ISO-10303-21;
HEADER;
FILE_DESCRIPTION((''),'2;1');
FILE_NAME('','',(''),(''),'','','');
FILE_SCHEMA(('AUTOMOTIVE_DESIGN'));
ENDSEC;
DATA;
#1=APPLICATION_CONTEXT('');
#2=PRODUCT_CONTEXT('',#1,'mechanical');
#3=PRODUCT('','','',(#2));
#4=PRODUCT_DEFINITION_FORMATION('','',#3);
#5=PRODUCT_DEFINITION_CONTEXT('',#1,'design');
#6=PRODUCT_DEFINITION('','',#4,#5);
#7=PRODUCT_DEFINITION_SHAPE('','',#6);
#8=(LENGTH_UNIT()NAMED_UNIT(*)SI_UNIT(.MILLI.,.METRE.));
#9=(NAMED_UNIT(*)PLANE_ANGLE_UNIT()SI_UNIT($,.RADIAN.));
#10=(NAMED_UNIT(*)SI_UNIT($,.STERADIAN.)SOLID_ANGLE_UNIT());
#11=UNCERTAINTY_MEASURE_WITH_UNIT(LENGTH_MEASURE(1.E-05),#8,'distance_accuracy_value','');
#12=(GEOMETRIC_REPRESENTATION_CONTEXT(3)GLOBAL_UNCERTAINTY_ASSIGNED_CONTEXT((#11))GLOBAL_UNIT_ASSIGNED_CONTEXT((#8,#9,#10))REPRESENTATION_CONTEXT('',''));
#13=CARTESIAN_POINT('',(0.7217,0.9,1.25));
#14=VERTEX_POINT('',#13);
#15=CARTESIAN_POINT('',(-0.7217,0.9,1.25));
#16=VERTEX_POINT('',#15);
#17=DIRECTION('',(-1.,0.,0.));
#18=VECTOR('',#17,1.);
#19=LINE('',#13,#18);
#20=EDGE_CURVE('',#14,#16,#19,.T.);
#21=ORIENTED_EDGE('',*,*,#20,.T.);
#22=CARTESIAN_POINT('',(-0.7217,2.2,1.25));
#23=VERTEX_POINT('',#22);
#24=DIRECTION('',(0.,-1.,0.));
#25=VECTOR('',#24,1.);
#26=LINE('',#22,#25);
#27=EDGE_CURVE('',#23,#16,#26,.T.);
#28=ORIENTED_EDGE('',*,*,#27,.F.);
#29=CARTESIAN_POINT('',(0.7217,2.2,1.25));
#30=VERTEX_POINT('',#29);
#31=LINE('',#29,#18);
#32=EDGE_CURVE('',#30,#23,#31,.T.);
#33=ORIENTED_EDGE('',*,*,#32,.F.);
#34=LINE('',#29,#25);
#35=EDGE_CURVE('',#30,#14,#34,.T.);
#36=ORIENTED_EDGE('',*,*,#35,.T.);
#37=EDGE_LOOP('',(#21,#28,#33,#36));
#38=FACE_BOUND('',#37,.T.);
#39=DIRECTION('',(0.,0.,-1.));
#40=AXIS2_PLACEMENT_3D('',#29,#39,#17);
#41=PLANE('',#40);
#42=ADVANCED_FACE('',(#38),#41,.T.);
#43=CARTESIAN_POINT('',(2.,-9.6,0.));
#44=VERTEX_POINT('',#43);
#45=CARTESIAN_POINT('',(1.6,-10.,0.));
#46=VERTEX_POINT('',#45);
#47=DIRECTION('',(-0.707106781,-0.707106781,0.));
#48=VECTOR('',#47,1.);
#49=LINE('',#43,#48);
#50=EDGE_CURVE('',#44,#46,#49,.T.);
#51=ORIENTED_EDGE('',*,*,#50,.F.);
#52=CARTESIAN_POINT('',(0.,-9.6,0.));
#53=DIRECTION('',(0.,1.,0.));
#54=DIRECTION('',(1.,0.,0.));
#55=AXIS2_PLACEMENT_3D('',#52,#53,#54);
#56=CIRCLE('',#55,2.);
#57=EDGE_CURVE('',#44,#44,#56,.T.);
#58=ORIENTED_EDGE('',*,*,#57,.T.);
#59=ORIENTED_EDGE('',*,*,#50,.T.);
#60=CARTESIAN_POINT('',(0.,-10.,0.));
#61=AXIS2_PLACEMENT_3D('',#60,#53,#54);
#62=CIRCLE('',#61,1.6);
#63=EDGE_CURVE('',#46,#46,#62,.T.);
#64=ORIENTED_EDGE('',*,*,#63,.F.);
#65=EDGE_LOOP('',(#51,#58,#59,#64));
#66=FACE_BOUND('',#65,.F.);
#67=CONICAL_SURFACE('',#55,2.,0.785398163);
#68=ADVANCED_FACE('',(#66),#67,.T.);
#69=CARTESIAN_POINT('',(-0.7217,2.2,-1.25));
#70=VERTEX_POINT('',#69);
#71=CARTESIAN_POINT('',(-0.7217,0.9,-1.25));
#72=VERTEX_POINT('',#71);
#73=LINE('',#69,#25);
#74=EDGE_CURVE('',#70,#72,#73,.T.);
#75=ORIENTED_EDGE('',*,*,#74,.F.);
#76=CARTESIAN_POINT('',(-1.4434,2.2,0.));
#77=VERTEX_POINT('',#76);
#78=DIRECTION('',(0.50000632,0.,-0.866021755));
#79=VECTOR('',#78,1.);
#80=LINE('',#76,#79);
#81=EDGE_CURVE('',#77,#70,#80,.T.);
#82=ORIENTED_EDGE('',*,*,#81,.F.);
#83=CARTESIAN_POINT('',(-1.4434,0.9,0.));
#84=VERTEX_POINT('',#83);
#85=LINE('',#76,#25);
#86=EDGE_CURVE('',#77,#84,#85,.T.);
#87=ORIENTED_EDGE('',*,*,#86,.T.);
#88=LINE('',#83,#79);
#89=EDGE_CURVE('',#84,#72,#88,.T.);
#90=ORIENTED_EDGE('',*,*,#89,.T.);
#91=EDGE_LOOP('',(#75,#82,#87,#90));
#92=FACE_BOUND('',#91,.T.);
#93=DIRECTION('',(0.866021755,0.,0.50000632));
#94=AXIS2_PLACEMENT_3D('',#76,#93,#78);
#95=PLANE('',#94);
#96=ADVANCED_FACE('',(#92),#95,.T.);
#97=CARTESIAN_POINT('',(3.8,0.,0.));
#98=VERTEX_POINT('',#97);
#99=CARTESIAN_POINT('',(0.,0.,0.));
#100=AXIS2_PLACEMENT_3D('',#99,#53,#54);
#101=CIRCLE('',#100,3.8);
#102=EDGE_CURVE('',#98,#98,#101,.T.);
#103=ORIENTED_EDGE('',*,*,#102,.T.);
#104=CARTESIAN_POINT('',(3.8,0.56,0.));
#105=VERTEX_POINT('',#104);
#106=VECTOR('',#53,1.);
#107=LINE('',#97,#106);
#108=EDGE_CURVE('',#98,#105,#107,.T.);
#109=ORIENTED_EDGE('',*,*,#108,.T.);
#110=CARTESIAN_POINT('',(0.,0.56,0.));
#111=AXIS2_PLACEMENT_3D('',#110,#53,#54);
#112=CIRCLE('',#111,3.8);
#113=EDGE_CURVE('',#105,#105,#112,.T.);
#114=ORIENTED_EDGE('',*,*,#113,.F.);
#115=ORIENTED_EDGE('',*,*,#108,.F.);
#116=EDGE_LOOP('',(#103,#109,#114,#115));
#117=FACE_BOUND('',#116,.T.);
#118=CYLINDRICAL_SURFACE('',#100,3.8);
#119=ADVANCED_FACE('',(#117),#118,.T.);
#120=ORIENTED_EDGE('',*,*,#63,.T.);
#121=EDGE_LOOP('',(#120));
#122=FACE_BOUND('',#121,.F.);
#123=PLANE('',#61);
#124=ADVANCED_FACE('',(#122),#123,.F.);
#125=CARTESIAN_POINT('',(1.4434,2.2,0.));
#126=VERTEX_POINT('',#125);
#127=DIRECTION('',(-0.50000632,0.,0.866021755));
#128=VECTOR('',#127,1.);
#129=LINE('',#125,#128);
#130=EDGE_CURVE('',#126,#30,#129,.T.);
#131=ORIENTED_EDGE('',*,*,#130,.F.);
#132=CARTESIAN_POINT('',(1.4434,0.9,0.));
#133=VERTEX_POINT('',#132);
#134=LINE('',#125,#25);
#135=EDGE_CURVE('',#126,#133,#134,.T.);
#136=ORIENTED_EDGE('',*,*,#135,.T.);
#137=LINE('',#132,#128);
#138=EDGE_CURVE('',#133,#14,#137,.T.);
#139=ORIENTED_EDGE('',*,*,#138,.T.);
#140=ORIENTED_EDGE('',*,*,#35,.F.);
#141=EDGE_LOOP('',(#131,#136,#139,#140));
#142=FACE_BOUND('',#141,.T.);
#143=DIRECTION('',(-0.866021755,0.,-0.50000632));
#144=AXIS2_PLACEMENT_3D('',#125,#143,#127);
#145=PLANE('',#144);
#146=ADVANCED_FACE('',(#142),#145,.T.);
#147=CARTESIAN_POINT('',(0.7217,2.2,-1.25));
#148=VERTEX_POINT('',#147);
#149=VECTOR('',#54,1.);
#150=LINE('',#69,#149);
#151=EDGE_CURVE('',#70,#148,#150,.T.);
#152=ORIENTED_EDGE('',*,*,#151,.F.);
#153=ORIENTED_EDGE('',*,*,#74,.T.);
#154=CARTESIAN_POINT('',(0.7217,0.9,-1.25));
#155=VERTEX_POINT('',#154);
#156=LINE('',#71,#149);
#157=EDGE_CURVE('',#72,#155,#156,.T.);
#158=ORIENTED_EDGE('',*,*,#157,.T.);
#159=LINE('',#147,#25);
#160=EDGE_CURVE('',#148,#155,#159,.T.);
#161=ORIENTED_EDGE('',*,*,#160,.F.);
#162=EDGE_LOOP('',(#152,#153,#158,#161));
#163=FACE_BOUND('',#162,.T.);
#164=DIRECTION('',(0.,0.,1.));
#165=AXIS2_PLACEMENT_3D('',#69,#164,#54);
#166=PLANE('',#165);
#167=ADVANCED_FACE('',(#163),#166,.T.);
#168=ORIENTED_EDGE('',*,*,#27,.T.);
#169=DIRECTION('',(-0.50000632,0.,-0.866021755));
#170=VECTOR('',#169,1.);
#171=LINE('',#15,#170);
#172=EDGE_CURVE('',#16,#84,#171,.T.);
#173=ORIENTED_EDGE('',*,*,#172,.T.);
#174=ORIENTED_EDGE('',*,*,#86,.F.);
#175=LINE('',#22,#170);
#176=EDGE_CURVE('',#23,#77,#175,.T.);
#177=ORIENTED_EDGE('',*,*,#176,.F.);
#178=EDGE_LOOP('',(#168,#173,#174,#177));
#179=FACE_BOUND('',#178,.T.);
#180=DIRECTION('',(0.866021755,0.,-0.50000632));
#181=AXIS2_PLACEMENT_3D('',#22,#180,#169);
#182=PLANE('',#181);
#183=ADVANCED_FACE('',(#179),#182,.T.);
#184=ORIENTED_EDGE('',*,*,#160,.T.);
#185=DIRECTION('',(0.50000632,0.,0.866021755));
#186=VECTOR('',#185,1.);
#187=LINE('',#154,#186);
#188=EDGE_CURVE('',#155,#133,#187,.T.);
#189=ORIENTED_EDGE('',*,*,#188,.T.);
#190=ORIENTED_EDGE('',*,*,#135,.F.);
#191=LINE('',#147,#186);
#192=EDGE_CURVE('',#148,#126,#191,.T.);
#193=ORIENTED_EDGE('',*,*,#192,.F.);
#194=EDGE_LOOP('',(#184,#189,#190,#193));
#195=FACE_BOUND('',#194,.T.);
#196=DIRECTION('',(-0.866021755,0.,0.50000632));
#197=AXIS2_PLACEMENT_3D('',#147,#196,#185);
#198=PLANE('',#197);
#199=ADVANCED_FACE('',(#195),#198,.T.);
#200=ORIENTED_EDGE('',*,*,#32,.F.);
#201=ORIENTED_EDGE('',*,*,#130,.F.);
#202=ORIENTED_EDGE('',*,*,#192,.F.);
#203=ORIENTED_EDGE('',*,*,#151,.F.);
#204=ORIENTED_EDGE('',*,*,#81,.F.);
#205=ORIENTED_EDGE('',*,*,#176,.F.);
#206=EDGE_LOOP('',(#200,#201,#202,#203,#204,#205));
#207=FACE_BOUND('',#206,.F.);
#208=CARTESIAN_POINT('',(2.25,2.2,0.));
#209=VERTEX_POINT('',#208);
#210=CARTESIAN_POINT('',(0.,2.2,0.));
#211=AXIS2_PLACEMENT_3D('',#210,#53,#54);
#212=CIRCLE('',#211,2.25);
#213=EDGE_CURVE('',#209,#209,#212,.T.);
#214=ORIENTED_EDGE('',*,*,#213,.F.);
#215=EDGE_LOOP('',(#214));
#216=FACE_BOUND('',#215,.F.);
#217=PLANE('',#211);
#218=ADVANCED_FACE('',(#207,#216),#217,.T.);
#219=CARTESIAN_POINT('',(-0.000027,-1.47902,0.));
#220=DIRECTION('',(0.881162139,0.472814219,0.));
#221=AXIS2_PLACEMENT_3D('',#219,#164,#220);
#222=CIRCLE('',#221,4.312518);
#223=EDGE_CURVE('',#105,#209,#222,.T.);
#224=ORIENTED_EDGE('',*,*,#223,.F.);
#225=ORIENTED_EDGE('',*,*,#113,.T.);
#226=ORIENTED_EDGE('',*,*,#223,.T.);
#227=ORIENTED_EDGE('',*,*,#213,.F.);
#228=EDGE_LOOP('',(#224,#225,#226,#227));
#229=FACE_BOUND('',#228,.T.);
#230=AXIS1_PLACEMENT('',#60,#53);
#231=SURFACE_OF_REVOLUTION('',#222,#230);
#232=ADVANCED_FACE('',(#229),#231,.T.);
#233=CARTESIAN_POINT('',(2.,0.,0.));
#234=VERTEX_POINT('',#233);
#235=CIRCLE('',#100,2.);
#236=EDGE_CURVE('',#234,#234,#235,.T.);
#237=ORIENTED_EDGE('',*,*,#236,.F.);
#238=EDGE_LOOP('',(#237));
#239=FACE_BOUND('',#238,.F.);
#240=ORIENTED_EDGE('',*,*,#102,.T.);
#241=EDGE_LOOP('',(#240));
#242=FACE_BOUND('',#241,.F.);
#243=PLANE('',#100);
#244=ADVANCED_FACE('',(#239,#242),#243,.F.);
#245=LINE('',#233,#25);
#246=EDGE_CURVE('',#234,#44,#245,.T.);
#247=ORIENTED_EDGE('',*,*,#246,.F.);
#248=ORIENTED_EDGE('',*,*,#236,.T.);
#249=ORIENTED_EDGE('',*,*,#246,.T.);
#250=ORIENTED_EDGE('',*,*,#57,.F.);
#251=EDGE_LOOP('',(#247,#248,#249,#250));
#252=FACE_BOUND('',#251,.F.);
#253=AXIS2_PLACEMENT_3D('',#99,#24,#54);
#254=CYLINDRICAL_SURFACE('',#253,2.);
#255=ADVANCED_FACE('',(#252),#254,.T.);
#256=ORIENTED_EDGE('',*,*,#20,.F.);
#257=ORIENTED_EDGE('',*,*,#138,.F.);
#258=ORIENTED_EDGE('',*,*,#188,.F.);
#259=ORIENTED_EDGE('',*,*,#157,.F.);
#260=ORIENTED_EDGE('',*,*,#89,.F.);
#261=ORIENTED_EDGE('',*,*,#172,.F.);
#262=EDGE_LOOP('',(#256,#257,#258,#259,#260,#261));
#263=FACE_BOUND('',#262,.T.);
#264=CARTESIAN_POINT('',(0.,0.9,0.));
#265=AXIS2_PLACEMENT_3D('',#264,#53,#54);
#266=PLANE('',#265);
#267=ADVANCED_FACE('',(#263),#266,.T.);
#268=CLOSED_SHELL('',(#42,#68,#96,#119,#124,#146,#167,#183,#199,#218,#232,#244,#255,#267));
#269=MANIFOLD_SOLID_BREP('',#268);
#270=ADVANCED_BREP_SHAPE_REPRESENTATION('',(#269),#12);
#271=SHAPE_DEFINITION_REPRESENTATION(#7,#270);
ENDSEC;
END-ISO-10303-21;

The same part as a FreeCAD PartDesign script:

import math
import FreeCAD as App
import Part
import Sketcher
from FreeCAD import Vector
Q = App.Units.Quantity


def edges_at(feature, points):
    """Names of the edges that pass closest to the given points."""
    edges = feature.Shape.Edges
    near = lambda p: min(range(len(edges)), key=lambda i: edges[i].distToShape(Part.Vertex(*p))[0])
    return sorted({f"Edge{near(p) + 1}" for p in points})

doc = App.newDocument("Part")
body = doc.addObject("PartDesign::Body", "Body")

# Sketch on XY plane
sketch1 = body.newObject("Sketcher::SketchObject", "Sketch")
sketch1.AttachmentSupport = (doc.getObject("XY_Plane"), [""])
sketch1.MapMode = "FlatFace"
sketch1.addGeometry([
    Part.LineSegment(Vector(0, 2.2, 0), Vector(0, -10, 0)),  # 0
    Part.LineSegment(Vector(0, -10, 0), Vector(2, -10, 0)),  # 1
    Part.LineSegment(Vector(2, -10, 0), Vector(2, 0, 0)),  # 2
    Part.LineSegment(Vector(2, 0, 0), Vector(3.8, 0, 0)),  # 3
    Part.LineSegment(Vector(3.8, 0, 0), Vector(3.8, 0.6, 0)),  # 4
    Part.ArcOfCircle(Part.Circle(Vector(0, -1.5, 0), Vector(0, 0, 1), 4.3), math.radians(28), math.radians(59)),  # 5
    Part.LineSegment(Vector(2.2, 2.2, 0), Vector(0, 2.2, 0)),  # 6
], False)
sketch1.addConstraint([
    Sketcher.Constraint("Coincident", 0, 2, 1, 1),
    Sketcher.Constraint("Coincident", 1, 2, 2, 1),
    Sketcher.Constraint("Coincident", 2, 2, 3, 1),
    Sketcher.Constraint("Coincident", 3, 2, 4, 1),
    Sketcher.Constraint("Coincident", 4, 2, 5, 1),
    Sketcher.Constraint("Coincident", 5, 2, 6, 1),
    Sketcher.Constraint("Coincident", 6, 2, 0, 1),
    Sketcher.Constraint("Vertical", 0),
    Sketcher.Constraint("Horizontal", 1),
    Sketcher.Constraint("Vertical", 2),
    Sketcher.Constraint("Horizontal", 3),
    Sketcher.Constraint("Vertical", 4),
    Sketcher.Constraint("Horizontal", 6),
    Sketcher.Constraint("PointOnObject", 5, 3, -2),
    Sketcher.Constraint("PointOnObject", 0, 2, -2),
    Sketcher.Constraint("PointOnObject", 2, 2, -1),
    Sketcher.Constraint("DistanceY", 2, 1, 2, 2, Q("10 mm")),
    Sketcher.Constraint("DistanceY", 4, 1, 4, 2, Q("0.56 mm")),
    Sketcher.Constraint("DistanceY", -1, 1, 5, 2, Q("2.2 mm")),
    Sketcher.Constraint("DistanceX", 1, 1, 1, 2, Q("2 mm")),
    Sketcher.Constraint("DistanceX", 3, 1, 3, 2, Q("1.8 mm")),
    Sketcher.Constraint("DistanceX", 6, 2, 6, 1, Q("2.25 mm")),
])
revolution = body.newObject("PartDesign::Revolution", "Revolution")
revolution.Profile = sketch1
revolution.ReferenceAxis = (sketch1, ["V_Axis"])
revolution.Angle = 360

# Sketch on XZ plane
sketch2 = body.newObject("Sketcher::SketchObject", "Sketch001")
sketch2.AttachmentSupport = (doc.getObject("XZ_Plane"), [""])
sketch2.MapMode = "FlatFace"
sketch2.AttachmentOffset = App.Placement(Vector(0, 0, -2.2), App.Rotation())
sketch2.addGeometry([
    Part.LineSegment(Vector(0.7, -1.2, 0), Vector(-0.7, -1.2, 0)),  # 0
    Part.LineSegment(Vector(-0.7, -1.2, 0), Vector(-1.4, 0, 0)),  # 1
    Part.LineSegment(Vector(-1.4, 0, 0), Vector(-0.7, 1.2, 0)),  # 2
    Part.LineSegment(Vector(-0.7, 1.2, 0), Vector(0.7, 1.2, 0)),  # 3
    Part.LineSegment(Vector(0.7, 1.2, 0), Vector(1.4, 0, 0)),  # 4
    Part.LineSegment(Vector(1.4, 0, 0), Vector(0.7, -1.2, 0)),  # 5
], False)
sketch2.addConstraint([
    Sketcher.Constraint("Coincident", 0, 2, 1, 1),
    Sketcher.Constraint("Coincident", 1, 2, 2, 1),
    Sketcher.Constraint("Coincident", 2, 2, 3, 1),
    Sketcher.Constraint("Coincident", 3, 2, 4, 1),
    Sketcher.Constraint("Coincident", 4, 2, 5, 1),
    Sketcher.Constraint("Coincident", 5, 2, 0, 1),
    Sketcher.Constraint("Horizontal", 0),
    Sketcher.Constraint("Horizontal", 3),
    Sketcher.Constraint("Symmetric", 0, 2, 3, 2, -1, 1),
    Sketcher.Constraint("Symmetric", 1, 2, 4, 2, -1, 1),
    Sketcher.Constraint("PointOnObject", 1, 2, -1),
    Sketcher.Constraint("Parallel", 2, 5),
    Sketcher.Constraint("Vertical", 0, 2, 2, 2),
    Sketcher.Constraint("DistanceY", 0, 2, 2, 2, Q("2.5 mm")),
    Sketcher.Constraint("Angle", 1, Q("120.0004 deg")),
    Sketcher.Constraint("DistanceX", 0, 2, 0, 1, Q("1.4434 mm")),
])
pocket1 = body.newObject("PartDesign::Pocket", "Pocket")
pocket1.Profile = sketch2
pocket1.Length = 1.3
pocket1.Reversed = True
doc.recompute()

chamfer = body.newObject("PartDesign::Chamfer", "Chamfer")
chamfer.Base = (pocket1, edges_at(pocket1, [(-2, -10, 0)]))
chamfer.Size = 0.4

doc.recompute()
